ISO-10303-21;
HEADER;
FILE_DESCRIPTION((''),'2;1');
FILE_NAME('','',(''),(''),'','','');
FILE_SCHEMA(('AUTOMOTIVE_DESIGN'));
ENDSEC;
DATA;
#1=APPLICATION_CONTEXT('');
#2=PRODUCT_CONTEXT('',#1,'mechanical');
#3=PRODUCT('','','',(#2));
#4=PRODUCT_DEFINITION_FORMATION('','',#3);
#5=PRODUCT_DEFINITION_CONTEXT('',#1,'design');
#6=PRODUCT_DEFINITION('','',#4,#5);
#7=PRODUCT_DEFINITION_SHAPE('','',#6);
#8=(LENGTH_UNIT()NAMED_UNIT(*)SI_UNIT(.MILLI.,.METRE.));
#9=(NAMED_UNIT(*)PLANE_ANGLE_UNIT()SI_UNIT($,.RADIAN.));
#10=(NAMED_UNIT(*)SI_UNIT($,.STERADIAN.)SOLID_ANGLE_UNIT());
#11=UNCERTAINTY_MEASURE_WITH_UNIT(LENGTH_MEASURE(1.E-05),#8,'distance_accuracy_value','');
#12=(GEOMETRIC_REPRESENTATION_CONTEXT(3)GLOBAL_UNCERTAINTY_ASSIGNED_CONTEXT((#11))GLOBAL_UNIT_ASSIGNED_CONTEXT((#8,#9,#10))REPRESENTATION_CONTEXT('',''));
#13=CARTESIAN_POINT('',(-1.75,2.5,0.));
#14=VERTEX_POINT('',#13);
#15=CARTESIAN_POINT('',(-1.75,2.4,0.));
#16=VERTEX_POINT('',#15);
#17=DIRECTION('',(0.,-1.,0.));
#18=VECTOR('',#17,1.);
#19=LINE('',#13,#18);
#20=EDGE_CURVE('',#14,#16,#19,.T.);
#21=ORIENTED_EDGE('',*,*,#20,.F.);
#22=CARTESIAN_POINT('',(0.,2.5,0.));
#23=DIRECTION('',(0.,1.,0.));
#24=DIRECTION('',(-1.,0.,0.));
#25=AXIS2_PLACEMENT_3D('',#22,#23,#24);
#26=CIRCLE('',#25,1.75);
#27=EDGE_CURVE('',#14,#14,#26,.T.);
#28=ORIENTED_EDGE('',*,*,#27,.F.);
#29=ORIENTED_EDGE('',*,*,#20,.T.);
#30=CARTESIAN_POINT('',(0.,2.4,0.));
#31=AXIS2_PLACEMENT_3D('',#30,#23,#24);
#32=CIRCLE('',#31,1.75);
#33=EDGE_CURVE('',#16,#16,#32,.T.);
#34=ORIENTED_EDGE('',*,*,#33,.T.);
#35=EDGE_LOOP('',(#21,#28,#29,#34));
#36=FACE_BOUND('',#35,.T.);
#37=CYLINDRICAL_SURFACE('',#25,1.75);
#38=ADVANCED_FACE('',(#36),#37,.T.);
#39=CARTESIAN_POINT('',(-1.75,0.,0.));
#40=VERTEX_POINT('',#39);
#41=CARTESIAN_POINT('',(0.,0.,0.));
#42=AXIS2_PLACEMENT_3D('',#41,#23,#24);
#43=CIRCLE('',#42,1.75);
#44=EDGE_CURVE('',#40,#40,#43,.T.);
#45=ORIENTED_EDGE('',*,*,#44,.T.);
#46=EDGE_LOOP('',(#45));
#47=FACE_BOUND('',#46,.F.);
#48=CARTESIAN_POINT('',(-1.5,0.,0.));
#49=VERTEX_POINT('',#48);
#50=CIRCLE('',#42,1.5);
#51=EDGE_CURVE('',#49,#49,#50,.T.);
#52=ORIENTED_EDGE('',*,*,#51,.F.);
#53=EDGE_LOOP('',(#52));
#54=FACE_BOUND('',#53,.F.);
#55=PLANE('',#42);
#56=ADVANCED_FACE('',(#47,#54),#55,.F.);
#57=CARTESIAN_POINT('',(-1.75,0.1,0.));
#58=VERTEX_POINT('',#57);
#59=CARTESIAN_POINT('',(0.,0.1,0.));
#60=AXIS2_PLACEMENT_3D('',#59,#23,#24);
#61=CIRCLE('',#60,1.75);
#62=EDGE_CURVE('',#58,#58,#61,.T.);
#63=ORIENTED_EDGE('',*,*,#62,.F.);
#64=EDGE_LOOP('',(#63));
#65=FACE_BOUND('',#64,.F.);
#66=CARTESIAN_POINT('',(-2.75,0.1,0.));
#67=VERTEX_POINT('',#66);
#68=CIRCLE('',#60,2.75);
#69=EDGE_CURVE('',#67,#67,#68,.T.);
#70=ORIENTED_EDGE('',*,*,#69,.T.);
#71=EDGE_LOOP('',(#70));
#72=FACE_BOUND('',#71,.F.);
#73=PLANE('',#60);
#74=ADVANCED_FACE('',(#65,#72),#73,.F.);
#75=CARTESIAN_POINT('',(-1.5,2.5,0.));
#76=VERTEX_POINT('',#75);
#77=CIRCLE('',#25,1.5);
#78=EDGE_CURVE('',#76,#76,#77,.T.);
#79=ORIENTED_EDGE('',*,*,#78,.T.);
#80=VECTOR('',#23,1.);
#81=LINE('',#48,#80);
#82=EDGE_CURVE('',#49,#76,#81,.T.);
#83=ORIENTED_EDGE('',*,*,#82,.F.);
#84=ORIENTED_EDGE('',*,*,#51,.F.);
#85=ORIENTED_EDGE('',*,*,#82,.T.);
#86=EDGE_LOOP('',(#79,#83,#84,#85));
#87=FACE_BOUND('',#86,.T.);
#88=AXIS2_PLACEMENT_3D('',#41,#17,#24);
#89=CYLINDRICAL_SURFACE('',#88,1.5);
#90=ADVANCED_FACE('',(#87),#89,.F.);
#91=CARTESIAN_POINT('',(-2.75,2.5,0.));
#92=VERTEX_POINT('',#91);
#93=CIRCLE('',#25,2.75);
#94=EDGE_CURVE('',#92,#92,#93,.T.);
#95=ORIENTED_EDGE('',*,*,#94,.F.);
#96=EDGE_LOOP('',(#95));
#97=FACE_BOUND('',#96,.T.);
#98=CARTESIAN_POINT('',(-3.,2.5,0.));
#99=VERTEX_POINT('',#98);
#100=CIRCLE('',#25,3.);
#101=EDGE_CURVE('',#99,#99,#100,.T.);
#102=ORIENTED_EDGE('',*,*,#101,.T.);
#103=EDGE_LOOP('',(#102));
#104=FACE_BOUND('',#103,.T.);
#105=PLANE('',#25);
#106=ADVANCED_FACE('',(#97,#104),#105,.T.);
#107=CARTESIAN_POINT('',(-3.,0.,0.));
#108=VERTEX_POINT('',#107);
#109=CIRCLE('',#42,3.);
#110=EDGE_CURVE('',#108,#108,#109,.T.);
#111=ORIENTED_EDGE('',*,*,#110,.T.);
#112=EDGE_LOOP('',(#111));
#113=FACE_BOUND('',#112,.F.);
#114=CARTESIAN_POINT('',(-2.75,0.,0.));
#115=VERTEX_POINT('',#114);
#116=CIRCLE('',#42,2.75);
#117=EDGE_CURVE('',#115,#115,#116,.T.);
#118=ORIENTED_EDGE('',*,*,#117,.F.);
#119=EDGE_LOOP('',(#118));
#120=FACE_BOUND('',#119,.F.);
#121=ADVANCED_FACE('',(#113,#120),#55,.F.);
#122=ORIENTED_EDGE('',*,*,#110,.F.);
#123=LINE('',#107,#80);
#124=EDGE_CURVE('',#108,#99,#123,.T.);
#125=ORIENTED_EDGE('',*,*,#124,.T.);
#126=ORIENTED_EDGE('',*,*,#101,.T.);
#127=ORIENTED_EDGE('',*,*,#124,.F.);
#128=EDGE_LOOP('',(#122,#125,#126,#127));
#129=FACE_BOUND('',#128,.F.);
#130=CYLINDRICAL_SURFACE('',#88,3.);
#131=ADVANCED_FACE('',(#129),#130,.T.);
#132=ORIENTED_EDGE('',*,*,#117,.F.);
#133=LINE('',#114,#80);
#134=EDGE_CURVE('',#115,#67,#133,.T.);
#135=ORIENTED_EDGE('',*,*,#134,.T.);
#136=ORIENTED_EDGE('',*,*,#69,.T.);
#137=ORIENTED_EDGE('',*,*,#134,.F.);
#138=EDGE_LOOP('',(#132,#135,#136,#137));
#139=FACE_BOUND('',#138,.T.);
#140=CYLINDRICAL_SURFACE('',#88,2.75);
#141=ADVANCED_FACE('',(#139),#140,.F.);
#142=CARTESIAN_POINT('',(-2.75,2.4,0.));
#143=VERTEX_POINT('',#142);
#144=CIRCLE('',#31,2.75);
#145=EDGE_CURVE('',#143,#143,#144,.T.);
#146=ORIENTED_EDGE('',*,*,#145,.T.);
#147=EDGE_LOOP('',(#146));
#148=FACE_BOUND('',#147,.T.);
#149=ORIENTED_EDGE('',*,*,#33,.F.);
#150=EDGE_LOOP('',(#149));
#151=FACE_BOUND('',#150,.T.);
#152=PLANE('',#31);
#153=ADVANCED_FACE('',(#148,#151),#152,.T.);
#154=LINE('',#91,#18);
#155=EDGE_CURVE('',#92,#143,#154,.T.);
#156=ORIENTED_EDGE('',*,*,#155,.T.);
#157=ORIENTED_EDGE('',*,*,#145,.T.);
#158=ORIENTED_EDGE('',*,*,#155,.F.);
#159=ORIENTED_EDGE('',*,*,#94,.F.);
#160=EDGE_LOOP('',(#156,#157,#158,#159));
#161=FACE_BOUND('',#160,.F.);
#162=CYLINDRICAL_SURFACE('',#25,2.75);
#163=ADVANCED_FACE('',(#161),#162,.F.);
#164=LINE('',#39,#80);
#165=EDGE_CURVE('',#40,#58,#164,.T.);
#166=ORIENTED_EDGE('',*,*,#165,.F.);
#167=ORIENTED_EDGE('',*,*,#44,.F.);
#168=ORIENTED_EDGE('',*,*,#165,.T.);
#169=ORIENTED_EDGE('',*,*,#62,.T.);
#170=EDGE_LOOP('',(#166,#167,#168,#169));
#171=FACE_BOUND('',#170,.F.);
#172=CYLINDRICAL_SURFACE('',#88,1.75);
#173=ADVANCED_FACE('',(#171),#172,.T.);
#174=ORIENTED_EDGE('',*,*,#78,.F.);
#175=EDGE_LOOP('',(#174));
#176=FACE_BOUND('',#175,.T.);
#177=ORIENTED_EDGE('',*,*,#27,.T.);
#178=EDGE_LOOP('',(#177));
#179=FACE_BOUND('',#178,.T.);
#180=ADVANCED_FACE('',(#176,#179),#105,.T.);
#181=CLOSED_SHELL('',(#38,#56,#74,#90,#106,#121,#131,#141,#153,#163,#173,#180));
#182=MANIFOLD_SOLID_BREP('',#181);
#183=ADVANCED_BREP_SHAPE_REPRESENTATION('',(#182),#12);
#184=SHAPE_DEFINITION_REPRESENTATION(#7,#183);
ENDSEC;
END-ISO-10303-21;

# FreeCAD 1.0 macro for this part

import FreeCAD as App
import Part
import Sketcher
from FreeCAD import Vector
Q = App.Units.Quantity

doc = App.newDocument("Part")
body = doc.addObject("PartDesign::Body", "Body")

# Sketch on XZ plane
sketch1 = body.newObject("Sketcher::SketchObject", "Sketch")
sketch1.AttachmentSupport = (doc.getObject("XZ_Plane"), [""])
sketch1.MapMode = "FlatFace"
sketch1.addGeometry([
    Part.Circle(Vector(0, 0, 0), Vector(0, 0, 1), 3),
    Part.Circle(Vector(0, 0, 0), Vector(0, 0, 1), 1.5),
], False)
sketch1.addConstraint([
    Sketcher.Constraint("Coincident", 0, 3, -1, 1),
    Sketcher.Constraint("Coincident", 1, 3, -1, 1),
    Sketcher.Constraint("Diameter", 0, Q("6 mm")),
    Sketcher.Constraint("Diameter", 1, Q("3 mm")),
])
pad1 = body.newObject("PartDesign::Pad", "Pad")
pad1.Profile = sketch1
pad1.Length = 2.5
pad1.Reversed = True

# Sketch on XZ plane
sketch2 = body.newObject("Sketcher::SketchObject", "Sketch001")
sketch2.AttachmentSupport = (doc.getObject("XZ_Plane"), [""])
sketch2.MapMode = "FlatFace"
sketch2.AttachmentOffset = App.Placement(Vector(0, 0, -2.5), App.Rotation())
sketch2.addGeometry([
    Part.Circle(Vector(0, 0, 0), Vector(0, 0, 1), 2.8),
    Part.Circle(Vector(0, 0, 0), Vector(0, 0, 1), 1.8),
], False)
sketch2.addConstraint([
    Sketcher.Constraint("Coincident", 0, 3, -1, 1),
    Sketcher.Constraint("Coincident", 1, 3, -1, 1),
    Sketcher.Constraint("Diameter", 0, Q("5.5 mm")),
    Sketcher.Constraint("Diameter", 1, Q("3.5 mm")),
])
pocket1 = body.newObject("PartDesign::Pocket", "Pocket")
pocket1.Profile = sketch2
pocket1.Length = 0.1
pocket1.Reversed = True

# Sketch on XZ plane
sketch3 = body.newObject("Sketcher::SketchObject", "Sketch002")
sketch3.AttachmentSupport = (doc.getObject("XZ_Plane"), [""])
sketch3.MapMode = "FlatFace"
sketch3.addGeometry([
    Part.Circle(Vector(0, 0, 0), Vector(0, 0, 1), 2.8),
    Part.Circle(Vector(0, 0, 0), Vector(0, 0, 1), 1.8),
], False)
sketch3.addConstraint([
    Sketcher.Constraint("Coincident", 0, 3, -1, 1),
    Sketcher.Constraint("Coincident", 1, 3, -1, 1),
    Sketcher.Constraint("Diameter", 0, Q("5.5 mm")),
    Sketcher.Constraint("Diameter", 1, Q("3.5 mm")),
])
pocket2 = body.newObject("PartDesign::Pocket", "Pocket001")
pocket2.Profile = sketch3
pocket2.Length = 0.1

doc.recompute()
